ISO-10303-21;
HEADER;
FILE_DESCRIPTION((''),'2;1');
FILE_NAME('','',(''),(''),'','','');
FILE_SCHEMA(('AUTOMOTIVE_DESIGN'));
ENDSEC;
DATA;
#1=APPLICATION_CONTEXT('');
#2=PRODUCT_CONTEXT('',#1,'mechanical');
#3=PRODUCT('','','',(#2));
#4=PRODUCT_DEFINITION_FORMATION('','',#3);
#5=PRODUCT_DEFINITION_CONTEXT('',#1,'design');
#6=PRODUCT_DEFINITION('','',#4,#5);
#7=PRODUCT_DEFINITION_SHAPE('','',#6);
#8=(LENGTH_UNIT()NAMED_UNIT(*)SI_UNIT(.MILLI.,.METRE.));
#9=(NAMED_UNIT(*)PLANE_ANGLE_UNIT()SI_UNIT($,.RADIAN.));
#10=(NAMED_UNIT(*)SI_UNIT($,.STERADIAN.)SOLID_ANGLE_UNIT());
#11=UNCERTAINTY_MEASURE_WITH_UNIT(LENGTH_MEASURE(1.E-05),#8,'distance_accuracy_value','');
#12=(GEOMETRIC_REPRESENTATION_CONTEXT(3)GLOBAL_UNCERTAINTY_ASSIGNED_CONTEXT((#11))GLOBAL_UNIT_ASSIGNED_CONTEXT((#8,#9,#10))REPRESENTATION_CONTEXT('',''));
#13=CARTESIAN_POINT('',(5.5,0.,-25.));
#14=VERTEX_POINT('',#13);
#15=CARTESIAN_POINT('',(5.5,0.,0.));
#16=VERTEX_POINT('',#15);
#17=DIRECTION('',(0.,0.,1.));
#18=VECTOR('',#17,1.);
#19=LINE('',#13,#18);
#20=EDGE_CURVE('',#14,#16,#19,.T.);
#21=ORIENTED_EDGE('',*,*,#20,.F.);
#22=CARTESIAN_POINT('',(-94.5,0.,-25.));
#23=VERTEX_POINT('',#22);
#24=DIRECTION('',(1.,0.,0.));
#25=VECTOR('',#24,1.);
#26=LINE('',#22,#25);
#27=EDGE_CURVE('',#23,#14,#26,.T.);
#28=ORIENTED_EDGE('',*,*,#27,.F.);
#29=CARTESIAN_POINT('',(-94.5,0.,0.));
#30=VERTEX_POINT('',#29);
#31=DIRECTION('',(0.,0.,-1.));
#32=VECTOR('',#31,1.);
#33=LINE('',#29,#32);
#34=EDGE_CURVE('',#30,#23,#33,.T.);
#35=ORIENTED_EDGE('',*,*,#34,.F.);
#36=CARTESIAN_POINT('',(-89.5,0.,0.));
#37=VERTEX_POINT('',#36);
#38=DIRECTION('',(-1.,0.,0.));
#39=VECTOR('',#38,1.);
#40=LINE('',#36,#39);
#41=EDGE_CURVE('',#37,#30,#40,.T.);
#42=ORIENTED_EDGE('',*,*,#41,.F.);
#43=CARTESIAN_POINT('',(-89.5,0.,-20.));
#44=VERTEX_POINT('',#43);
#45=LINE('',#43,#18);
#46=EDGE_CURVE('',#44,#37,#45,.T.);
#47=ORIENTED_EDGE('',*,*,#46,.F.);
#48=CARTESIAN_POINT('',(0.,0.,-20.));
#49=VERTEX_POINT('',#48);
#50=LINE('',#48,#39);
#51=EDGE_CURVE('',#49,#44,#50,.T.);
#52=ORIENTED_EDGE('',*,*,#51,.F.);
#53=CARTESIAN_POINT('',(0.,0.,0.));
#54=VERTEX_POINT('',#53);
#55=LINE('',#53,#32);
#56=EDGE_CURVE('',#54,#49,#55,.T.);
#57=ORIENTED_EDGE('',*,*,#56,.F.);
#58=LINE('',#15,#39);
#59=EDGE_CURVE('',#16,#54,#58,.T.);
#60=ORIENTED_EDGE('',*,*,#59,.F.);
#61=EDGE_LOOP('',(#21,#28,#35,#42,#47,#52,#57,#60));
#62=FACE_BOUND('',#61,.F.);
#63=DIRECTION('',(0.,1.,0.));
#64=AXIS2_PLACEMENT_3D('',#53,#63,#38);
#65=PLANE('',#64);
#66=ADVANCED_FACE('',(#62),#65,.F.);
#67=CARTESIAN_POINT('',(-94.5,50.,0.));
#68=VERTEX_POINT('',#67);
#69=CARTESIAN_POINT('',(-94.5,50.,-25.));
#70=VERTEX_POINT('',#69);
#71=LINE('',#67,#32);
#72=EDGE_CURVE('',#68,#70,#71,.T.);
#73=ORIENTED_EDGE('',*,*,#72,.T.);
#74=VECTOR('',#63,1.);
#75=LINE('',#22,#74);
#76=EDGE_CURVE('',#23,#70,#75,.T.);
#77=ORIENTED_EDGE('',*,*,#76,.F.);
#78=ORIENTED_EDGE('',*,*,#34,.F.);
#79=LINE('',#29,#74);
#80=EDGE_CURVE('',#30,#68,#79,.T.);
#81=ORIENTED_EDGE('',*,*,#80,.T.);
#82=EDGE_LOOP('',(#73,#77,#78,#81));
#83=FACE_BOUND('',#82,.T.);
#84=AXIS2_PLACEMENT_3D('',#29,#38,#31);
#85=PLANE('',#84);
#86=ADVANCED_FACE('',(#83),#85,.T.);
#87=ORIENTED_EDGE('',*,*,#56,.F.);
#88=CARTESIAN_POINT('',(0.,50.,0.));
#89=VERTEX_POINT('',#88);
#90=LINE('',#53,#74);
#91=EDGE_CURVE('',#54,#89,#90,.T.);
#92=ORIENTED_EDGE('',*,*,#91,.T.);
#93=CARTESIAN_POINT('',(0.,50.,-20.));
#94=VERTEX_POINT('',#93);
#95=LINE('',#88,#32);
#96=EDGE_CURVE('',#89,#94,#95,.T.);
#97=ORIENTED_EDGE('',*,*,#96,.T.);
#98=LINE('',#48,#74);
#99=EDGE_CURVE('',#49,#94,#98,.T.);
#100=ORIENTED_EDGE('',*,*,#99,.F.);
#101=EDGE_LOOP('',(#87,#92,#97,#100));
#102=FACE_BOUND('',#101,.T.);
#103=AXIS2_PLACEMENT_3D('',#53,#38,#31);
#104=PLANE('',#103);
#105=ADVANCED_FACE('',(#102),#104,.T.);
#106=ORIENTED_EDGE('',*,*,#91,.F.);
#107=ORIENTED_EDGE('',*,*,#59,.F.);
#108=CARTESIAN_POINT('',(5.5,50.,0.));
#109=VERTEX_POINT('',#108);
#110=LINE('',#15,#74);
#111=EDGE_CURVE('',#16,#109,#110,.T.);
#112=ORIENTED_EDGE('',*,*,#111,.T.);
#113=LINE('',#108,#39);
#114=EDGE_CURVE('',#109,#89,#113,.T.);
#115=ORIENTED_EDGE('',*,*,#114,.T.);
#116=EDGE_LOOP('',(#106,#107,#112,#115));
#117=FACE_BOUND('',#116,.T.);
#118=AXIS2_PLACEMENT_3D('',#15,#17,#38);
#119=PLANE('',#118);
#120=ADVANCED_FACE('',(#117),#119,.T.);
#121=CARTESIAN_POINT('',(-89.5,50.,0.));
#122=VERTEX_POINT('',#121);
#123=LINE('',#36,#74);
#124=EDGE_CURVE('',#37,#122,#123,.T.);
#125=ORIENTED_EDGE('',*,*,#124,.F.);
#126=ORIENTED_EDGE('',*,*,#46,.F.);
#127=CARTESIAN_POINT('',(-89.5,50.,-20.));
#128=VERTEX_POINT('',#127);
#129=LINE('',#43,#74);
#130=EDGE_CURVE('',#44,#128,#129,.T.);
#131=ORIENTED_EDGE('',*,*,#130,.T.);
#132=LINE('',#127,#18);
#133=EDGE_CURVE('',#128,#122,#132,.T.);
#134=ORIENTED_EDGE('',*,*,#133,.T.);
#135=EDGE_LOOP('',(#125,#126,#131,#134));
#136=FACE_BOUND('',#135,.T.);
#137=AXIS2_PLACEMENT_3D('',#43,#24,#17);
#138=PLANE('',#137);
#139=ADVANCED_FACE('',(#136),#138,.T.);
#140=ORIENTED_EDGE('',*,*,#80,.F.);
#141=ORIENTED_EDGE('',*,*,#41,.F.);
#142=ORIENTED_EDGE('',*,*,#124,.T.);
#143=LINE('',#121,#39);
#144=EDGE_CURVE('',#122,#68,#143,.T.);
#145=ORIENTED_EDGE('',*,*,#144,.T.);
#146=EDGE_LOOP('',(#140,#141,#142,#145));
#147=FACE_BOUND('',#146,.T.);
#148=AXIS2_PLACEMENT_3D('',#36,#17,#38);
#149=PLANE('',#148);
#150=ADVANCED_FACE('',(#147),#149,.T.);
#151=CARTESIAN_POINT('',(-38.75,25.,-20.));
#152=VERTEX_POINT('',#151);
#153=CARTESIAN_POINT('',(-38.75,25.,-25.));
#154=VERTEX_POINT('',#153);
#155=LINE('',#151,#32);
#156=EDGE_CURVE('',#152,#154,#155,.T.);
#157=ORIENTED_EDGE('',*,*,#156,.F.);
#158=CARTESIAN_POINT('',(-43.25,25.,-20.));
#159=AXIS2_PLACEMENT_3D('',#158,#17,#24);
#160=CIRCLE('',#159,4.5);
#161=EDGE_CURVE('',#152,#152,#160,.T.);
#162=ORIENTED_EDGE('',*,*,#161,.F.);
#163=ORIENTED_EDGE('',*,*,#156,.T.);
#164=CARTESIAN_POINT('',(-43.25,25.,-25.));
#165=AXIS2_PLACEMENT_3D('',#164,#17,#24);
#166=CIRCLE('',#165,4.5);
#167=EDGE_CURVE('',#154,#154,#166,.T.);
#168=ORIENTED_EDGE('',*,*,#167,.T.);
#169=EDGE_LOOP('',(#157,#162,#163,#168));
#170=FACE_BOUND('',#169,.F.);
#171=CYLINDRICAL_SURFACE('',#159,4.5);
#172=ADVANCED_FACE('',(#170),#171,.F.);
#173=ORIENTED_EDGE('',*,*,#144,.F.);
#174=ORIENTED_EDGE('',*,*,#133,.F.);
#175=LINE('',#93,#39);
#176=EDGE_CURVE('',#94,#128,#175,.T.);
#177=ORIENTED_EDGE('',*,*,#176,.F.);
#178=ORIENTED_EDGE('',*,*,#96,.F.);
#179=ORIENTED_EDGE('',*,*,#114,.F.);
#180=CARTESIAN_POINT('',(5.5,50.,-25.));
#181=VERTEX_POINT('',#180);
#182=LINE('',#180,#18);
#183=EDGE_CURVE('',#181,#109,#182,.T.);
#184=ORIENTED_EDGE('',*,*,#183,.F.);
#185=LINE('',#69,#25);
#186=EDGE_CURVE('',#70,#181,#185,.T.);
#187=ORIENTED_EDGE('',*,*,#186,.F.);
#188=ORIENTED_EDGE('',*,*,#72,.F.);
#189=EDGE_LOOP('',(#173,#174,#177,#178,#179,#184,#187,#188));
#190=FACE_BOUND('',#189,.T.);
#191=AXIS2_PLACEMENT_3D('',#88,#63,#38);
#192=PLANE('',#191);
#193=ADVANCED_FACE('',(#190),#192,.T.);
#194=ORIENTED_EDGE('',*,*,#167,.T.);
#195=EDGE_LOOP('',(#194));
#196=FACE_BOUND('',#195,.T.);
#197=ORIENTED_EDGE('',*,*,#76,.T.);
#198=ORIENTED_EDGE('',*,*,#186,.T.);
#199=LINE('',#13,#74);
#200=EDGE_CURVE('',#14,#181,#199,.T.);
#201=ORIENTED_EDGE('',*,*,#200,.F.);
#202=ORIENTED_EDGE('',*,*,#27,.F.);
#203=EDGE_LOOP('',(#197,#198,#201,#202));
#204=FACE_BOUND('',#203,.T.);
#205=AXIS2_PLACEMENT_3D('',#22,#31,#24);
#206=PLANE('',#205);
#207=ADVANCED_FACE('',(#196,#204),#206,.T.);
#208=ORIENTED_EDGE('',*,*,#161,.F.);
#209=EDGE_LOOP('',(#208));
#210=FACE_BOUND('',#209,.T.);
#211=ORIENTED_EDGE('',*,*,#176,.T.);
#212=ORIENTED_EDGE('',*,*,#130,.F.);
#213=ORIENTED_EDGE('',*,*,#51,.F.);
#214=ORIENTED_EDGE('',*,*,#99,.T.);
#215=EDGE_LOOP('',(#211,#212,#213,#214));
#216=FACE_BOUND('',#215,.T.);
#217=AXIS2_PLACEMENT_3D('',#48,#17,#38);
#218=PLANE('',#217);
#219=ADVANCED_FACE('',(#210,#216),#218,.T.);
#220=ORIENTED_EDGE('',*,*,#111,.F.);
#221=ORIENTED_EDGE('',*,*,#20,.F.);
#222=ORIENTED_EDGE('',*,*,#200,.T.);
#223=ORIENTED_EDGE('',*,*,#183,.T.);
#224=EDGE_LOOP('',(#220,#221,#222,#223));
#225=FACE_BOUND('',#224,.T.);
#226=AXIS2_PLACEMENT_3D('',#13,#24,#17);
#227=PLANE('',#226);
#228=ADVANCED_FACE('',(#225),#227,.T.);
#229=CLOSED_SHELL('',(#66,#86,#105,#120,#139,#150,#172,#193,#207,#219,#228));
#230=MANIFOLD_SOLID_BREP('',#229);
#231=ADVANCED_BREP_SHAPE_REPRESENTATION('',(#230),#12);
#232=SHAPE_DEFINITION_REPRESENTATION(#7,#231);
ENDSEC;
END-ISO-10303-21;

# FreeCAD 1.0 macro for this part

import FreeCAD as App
import Part
import Sketcher


def add_polygon(sketch, points):
    """Adds a closed chain of lines whose ends are joined by coincident constraints."""
    first, n = sketch.GeometryCount, len(points)
    for a, b in zip(points, points[1:] + points[:1]):
        sketch.addGeometry(Part.LineSegment(App.Vector(*a, 0), App.Vector(*b, 0)), False)
    for i in range(n):
        sketch.addConstraint(Sketcher.Constraint("Coincident", first + i, 2, first + (i + 1) % n, 1))

doc = App.newDocument("Part")
body = doc.addObject("PartDesign::Body", "Body")

# Sketch on XZ plane
sketch1 = body.newObject("Sketcher::SketchObject", "Sketch")
sketch1.AttachmentSupport = (doc.getObject("XZ_Plane"), [""])
sketch1.MapMode = "FlatFace"
add_polygon(sketch1, [(0, -20), (0, 0), (6, 0), (6, -25), (-94, -25), (-94, 0), (-90, 0), (-90, -20)])  # lines 0-7
sketch1.addConstraint([
    Sketcher.Constraint("Vertical", 0),
    Sketcher.Constraint("Horizontal", 1),
    Sketcher.Constraint("Vertical", 2),
    Sketcher.Constraint("Horizontal", 3),
    Sketcher.Constraint("Vertical", 4),
    Sketcher.Constraint("Horizontal", 5),
    Sketcher.Constraint("Vertical", 6),
    Sketcher.Constraint("Horizontal", 7),
    Sketcher.Constraint("Coincident", 0, 2, -1, 1),
    Sketcher.Constraint("PointOnObject", 4, 2, -1),
    Sketcher.Constraint("DistanceX", 3, 2, 3, 1, 100.0),
    Sketcher.Constraint("DistanceX", 5, 1, 5, 2, 5.0),
    Sketcher.Constraint("DistanceY", 0, 1, 0, 2, 20.0),
    Sketcher.Constraint("DistanceY", 2, 2, 2, 1, 25.0),
    Sketcher.Constraint("DistanceX", 7, 1, 7, 2, 89.5),
])
pad1 = body.newObject("PartDesign::Pad", "Pad")
pad1.Profile = sketch1
pad1.Length = 50
pad1.Reversed = True

# Sketch on XY plane
sketch2 = body.newObject("Sketcher::SketchObject", "Sketch001")
sketch2.AttachmentSupport = (doc.getObject("XY_Plane"), [""])
sketch2.MapMode = "FlatFace"
sketch2.AttachmentOffset = App.Placement(App.Vector(0, 0, -20), App.Rotation())
sketch2.addGeometry(Part.Circle(App.Vector(-43.2, 25, 0), App.Vector(0, 0, 1), 4.5), False)
sketch2.addConstraint([
    Sketcher.Constraint("Diameter", 0, 9.0),
    Sketcher.Constraint("DistanceY", -1, 1, 0, 3, 25.0),
    Sketcher.Constraint("DistanceX", 0, 3, -1, 1, 43.25),
])
pocket1 = body.newObject("PartDesign::Pocket", "Pocket")
pocket1.Profile = sketch2
pocket1.Length = 50

doc.recompute()
